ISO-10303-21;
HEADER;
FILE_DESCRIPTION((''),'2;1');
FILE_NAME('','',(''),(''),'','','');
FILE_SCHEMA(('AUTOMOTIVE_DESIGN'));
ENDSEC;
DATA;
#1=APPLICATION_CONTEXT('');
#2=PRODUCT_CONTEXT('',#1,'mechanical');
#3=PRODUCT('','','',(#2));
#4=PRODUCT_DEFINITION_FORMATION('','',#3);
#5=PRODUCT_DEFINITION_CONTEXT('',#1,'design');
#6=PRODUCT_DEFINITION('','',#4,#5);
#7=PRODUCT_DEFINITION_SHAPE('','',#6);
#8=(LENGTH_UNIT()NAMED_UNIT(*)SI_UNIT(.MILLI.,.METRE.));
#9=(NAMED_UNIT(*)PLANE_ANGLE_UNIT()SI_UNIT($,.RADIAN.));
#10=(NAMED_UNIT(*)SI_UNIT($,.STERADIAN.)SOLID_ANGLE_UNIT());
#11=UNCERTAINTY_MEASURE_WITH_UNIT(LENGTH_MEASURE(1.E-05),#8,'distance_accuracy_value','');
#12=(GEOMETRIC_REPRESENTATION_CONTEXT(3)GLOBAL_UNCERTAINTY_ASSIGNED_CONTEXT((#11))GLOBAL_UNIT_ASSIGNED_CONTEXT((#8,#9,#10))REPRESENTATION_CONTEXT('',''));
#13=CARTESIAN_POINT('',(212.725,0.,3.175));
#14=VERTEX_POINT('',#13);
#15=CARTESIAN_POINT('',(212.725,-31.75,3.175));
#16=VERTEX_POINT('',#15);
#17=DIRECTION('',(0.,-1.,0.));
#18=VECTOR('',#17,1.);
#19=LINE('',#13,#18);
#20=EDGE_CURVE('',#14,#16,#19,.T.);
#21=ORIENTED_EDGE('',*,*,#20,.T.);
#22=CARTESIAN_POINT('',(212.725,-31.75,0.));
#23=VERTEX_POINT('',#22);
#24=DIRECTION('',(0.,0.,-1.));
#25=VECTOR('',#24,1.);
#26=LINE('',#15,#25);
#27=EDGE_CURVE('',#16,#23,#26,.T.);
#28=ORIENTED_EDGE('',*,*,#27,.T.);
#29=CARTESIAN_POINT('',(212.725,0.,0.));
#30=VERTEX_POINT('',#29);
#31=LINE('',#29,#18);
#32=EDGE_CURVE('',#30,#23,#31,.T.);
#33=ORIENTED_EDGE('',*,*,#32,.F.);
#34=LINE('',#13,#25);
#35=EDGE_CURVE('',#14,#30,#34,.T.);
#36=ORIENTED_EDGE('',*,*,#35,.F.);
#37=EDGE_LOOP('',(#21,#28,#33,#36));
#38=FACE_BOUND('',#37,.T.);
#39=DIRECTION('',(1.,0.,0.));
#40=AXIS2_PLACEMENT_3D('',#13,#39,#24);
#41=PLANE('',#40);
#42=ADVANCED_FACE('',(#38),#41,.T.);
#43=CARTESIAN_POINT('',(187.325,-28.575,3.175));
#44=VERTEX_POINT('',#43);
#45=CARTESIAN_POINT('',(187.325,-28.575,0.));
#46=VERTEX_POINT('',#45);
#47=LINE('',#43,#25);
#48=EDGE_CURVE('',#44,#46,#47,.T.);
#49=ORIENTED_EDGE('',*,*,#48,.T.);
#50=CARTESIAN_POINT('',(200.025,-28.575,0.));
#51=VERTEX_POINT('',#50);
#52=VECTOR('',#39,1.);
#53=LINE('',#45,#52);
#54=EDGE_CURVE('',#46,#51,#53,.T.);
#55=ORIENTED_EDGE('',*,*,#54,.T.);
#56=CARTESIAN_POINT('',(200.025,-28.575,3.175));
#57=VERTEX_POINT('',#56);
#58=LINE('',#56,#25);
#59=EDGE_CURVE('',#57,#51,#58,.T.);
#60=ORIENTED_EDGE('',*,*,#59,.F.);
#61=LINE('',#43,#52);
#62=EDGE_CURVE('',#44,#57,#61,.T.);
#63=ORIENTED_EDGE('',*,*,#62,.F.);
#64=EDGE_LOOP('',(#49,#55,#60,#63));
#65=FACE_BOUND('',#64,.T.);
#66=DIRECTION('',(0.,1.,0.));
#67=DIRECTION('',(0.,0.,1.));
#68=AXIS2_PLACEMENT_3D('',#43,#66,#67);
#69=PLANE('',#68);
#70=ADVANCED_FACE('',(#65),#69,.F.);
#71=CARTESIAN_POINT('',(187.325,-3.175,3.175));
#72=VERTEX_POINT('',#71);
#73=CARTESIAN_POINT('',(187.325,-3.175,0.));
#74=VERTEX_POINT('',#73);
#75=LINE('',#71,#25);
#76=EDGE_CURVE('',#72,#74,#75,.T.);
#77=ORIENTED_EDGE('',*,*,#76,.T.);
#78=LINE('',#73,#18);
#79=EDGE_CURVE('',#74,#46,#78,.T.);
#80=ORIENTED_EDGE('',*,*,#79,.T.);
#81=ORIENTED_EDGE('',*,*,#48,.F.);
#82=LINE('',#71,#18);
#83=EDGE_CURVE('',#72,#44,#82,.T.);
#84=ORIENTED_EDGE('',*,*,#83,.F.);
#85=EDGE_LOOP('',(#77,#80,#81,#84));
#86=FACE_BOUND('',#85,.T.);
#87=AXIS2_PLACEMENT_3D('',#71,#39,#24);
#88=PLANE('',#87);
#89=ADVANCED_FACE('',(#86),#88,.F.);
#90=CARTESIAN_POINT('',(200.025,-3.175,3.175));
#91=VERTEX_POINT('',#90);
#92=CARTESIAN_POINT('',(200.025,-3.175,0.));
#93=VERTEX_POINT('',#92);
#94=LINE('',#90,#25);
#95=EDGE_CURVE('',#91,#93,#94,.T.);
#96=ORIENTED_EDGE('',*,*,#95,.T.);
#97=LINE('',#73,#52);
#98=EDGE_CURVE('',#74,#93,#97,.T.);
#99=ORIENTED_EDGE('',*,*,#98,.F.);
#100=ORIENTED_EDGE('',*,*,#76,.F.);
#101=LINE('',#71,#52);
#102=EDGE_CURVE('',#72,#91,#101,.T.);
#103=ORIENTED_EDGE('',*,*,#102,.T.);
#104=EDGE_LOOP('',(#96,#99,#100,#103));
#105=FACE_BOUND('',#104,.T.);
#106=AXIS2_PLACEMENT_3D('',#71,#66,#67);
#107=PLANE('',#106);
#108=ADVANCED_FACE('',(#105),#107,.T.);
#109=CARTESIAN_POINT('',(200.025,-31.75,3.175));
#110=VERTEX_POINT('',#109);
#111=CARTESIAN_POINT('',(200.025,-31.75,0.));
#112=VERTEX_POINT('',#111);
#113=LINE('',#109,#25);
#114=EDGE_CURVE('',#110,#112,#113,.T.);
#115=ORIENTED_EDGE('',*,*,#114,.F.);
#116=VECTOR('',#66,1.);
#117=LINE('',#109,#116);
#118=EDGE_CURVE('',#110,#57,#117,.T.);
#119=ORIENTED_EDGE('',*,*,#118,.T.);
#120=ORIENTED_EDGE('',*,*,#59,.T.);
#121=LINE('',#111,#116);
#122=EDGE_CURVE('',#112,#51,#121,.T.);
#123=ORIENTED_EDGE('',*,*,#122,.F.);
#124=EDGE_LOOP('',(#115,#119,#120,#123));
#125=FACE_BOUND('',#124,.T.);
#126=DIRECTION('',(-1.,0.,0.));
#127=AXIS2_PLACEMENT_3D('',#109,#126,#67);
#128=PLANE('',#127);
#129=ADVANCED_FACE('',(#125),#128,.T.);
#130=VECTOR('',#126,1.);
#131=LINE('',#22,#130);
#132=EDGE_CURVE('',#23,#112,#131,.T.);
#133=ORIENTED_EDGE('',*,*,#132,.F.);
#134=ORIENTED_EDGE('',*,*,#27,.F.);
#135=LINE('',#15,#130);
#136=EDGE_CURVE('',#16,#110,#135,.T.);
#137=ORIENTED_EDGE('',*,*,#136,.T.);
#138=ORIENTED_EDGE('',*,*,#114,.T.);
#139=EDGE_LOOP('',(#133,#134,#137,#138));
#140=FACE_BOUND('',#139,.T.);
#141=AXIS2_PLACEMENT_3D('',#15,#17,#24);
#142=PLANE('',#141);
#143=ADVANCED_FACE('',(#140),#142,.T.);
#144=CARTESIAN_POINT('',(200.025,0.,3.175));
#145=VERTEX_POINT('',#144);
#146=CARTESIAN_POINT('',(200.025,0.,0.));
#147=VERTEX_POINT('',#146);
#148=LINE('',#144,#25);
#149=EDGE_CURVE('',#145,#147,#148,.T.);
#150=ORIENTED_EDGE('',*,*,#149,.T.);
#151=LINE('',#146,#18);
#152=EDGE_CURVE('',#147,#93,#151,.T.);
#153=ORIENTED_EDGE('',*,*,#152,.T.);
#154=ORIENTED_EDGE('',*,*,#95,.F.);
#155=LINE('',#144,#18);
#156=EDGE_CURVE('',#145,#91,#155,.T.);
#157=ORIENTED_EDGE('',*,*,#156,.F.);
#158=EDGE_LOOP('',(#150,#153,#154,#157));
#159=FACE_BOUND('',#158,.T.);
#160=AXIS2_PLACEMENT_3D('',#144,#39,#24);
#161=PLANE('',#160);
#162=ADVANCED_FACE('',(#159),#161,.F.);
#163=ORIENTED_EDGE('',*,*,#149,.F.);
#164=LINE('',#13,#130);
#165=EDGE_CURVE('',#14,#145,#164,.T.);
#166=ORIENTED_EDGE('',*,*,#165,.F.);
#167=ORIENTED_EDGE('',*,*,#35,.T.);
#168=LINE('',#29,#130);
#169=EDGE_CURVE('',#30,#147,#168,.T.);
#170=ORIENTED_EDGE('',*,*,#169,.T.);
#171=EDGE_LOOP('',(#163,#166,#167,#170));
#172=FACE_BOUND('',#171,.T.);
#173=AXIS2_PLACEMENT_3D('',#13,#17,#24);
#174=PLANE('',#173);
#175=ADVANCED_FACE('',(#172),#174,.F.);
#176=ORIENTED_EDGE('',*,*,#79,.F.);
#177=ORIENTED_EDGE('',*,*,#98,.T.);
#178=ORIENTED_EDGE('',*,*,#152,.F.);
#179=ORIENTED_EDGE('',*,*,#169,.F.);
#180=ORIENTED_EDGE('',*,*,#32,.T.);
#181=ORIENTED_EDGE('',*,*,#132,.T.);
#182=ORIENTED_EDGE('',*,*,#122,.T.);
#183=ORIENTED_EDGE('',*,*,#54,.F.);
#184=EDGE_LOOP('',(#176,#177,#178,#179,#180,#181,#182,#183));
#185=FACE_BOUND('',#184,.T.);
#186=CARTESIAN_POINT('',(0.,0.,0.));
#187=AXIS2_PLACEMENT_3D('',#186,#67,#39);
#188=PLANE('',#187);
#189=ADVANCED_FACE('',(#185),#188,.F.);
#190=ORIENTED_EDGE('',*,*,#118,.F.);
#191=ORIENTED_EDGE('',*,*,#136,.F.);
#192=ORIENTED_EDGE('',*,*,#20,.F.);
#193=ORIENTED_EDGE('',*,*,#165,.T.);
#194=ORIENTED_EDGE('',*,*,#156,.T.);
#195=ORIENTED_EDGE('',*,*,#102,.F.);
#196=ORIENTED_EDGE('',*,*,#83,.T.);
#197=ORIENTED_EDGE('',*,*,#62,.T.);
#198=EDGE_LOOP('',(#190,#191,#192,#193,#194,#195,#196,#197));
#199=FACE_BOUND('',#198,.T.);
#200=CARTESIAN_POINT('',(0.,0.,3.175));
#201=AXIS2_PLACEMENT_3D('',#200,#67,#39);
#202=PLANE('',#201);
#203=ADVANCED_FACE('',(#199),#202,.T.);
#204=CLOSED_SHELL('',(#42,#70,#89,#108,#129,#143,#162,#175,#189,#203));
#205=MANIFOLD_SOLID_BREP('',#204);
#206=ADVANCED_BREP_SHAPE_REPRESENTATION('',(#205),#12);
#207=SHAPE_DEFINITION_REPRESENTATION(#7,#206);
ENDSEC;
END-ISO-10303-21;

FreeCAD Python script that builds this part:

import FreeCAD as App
import Part
import Sketcher

V = App.Vector
Q = App.Units.Quantity

doc = App.newDocument("Part")
params = doc.addObject("Spreadsheet::Sheet", "Params")
for row, (alias, value) in enumerate([
    ("sketch1_height", "1 in"),
    ("sketch1_width", "0.5 in"),
    ("sketch1_height2", "1.25 in"),
    ("pad1_length", "0.125 in"),
], start=1):
    params.set(f"A{row}", alias)
    params.set(f"B{row}", "=" + value)
    params.setAlias(f"B{row}", alias)

body = doc.addObject("PartDesign::Body", "Body")

# Sketch on XY plane
sketch1 = body.newObject("Sketcher::SketchObject", "Sketch")
sketch1.AttachmentSupport = (doc.getObject("XY_Plane"), [""])
sketch1.MapMode = "FlatFace"
sketch1.addGeometry(Part.LineSegment(V(212.7, 0, 0), V(200, 0, 0)), False)
sketch1.addGeometry(Part.LineSegment(V(200, 0, 0), V(200, -3.2, 0)), False)
sketch1.addGeometry(Part.LineSegment(V(200, -3.2, 0), V(187.3, -3.2, 0)), False)
sketch1.addGeometry(Part.LineSegment(V(187.3, -3.2, 0), V(187.3, -28.6, 0)), False)
sketch1.addGeometry(Part.LineSegment(V(187.3, -28.6, 0), V(200, -28.6, 0)), False)
sketch1.addGeometry(Part.LineSegment(V(200, -28.6, 0), V(200, -31.8, 0)), False)
sketch1.addGeometry(Part.LineSegment(V(200, -31.8, 0), V(212.7, -31.8, 0)), False)
sketch1.addGeometry(Part.LineSegment(V(212.7, -31.8, 0), V(212.7, 0, 0)), False)
sketch1.addConstraint(Sketcher.Constraint("Coincident", 0, 2, 1, 1))
sketch1.addConstraint(Sketcher.Constraint("Coincident", 1, 2, 2, 1))
sketch1.addConstraint(Sketcher.Constraint("Coincident", 2, 2, 3, 1))
sketch1.addConstraint(Sketcher.Constraint("Coincident", 3, 2, 4, 1))
sketch1.addConstraint(Sketcher.Constraint("Coincident", 4, 2, 5, 1))
sketch1.addConstraint(Sketcher.Constraint("Coincident", 5, 2, 6, 1))
sketch1.addConstraint(Sketcher.Constraint("Coincident", 6, 2, 7, 1))
sketch1.addConstraint(Sketcher.Constraint("Coincident", 7, 2, 0, 1))
sketch1.addConstraint(Sketcher.Constraint("Horizontal", 0))
sketch1.addConstraint(Sketcher.Constraint("Vertical", 1))
sketch1.addConstraint(Sketcher.Constraint("Horizontal", 2))
sketch1.addConstraint(Sketcher.Constraint("Vertical", 3))
sketch1.addConstraint(Sketcher.Constraint("Horizontal", 4))
sketch1.addConstraint(Sketcher.Constraint("Vertical", 5))
sketch1.addConstraint(Sketcher.Constraint("Horizontal", 6))
sketch1.addConstraint(Sketcher.Constraint("Vertical", 7))
sketch1.addConstraint(Sketcher.Constraint("PointOnObject", 0, 2, -1))
sketch1.addConstraint(Sketcher.Constraint("Vertical", 1, 2, 4, 2))
sketch1.addConstraint(Sketcher.Constraint("Equal", 0, 2))
sketch1.addConstraint(Sketcher.Constraint("Equal", 1, 5))
sketch1.addConstraint(Sketcher.Constraint("DistanceY", 3, 2, 3, 1, Q("1 in")))
sketch1.addConstraint(Sketcher.Constraint("DistanceX", 0, 2, 0, 1, Q("0.5 in")))
sketch1.addConstraint(Sketcher.Constraint("DistanceY", 7, 1, 7, 2, Q("1.25 in")))
sketch1.addConstraint(Sketcher.Constraint("DistanceX", -1, 1, 0, 2, Q("7.875 in")))
sketch1.setExpression("Constraints[20]", "Params.sketch1_height")
sketch1.setExpression("Constraints[21]", "Params.sketch1_width")
sketch1.setExpression("Constraints[22]", "Params.sketch1_height2")
pad1 = body.newObject("PartDesign::Pad", "Pad")
pad1.Profile = sketch1
pad1.setExpression("Length", "Params.pad1_length")

doc.recompute()
